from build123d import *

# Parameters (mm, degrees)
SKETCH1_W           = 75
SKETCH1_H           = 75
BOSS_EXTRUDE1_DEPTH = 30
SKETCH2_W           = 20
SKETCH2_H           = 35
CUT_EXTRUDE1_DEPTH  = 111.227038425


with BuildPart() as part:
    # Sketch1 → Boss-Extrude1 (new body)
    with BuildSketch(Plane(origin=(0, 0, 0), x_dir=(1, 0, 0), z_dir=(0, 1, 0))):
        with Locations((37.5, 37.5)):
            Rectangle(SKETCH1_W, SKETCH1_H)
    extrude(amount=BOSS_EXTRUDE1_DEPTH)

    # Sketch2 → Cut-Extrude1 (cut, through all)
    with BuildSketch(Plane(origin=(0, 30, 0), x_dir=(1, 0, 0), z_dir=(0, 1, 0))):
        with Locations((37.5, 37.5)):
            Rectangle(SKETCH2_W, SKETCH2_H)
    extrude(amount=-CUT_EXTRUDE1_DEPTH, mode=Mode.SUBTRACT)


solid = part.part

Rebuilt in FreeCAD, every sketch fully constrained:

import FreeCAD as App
import Part
import Sketcher
from FreeCAD import Vector
Q = App.Units.Quantity


def add_polygon(sketch, points):
    """Adds a closed chain of lines whose ends are joined by coincident constraints."""
    first, n = sketch.GeometryCount, len(points)
    for a, b in zip(points, points[1:] + points[:1]):
        sketch.addGeometry(Part.LineSegment(App.Vector(*a, 0), App.Vector(*b, 0)), False)
    for i in range(n):
        sketch.addConstraint(Sketcher.Constraint("Coincident", first + i, 2, first + (i + 1) % n, 1))

doc = App.newDocument("Part")
params = doc.addObject("Spreadsheet::Sheet", "Params")
for row, (alias, value) in enumerate([
    ("sketch1_width", "75 mm"),
    ("pad1_length", "30 mm"),
    ("sketch2_width", "20 mm"),
    ("sketch2_height", "35 mm"),
], start=1):
    params.set(f"A{row}", alias)
    params.set(f"B{row}", "=" + value)
    params.setAlias(f"B{row}", alias)

body = doc.addObject("PartDesign::Body", "Body")

# Sketch on XZ plane
sketch1 = body.newObject("Sketcher::SketchObject", "Sketch")
sketch1.AttachmentSupport = (doc.getObject("XZ_Plane"), [""])
sketch1.MapMode = "FlatFace"
add_polygon(sketch1, [(0, -75), (0, 0), (75, 0), (75, -75)])  # lines 0-3
sketch1.addConstraint([
    Sketcher.Constraint("Vertical", 0),
    Sketcher.Constraint("Horizontal", 1),
    Sketcher.Constraint("Vertical", 2),
    Sketcher.Constraint("Horizontal", 3),
    Sketcher.Constraint("Coincident", 0, 2, -1, 1),
    Sketcher.Constraint("Equal", 3, 0),
    Sketcher.Constraint("DistanceX", 1, 1, 1, 2, Q("75 mm")),
])
sketch1.setExpression("Constraints[10]", "Params.sketch1_width")
pad1 = body.newObject("PartDesign::Pad", "Pad")
pad1.Profile = sketch1
pad1.setExpression("Length", "Params.pad1_length")
pad1.Reversed = True

# Sketch on XZ plane
sketch2 = body.newObject("Sketcher::SketchObject", "Sketch001")
sketch2.AttachmentSupport = (doc.getObject("XZ_Plane"), [""])
sketch2.MapMode = "FlatFace"
sketch2.AttachmentOffset = App.Placement(Vector(0, 0, -30), App.Rotation())
add_polygon(sketch2, [(28, -55), (28, -20), (48, -20), (48, -55)])  # lines 0-3
sketch2.addConstraint([
    Sketcher.Constraint("Vertical", 0),
    Sketcher.Constraint("Horizontal", 1),
    Sketcher.Constraint("Vertical", 2),
    Sketcher.Constraint("Horizontal", 3),
    Sketcher.Constraint("DistanceX", 1, 1, 1, 2, Q("20 mm")),
    Sketcher.Constraint("DistanceY", 0, 1, 0, 2, Q("35 mm")),
    Sketcher.Constraint("DistanceY", 0, 2, -1, 1, Q("20 mm")),
    Sketcher.Constraint("DistanceX", -1, 1, 0, 2, Q("27.5 mm")),
])
sketch2.setExpression("Constraints[8]", "Params.sketch2_width")
sketch2.setExpression("Constraints[9]", "Params.sketch2_height")
pocket1 = body.newObject("PartDesign::Pocket", "Pocket")
pocket1.Profile = sketch2
pocket1.Type = "ThroughAll"
pocket1.Reversed = True

doc.recompute()
